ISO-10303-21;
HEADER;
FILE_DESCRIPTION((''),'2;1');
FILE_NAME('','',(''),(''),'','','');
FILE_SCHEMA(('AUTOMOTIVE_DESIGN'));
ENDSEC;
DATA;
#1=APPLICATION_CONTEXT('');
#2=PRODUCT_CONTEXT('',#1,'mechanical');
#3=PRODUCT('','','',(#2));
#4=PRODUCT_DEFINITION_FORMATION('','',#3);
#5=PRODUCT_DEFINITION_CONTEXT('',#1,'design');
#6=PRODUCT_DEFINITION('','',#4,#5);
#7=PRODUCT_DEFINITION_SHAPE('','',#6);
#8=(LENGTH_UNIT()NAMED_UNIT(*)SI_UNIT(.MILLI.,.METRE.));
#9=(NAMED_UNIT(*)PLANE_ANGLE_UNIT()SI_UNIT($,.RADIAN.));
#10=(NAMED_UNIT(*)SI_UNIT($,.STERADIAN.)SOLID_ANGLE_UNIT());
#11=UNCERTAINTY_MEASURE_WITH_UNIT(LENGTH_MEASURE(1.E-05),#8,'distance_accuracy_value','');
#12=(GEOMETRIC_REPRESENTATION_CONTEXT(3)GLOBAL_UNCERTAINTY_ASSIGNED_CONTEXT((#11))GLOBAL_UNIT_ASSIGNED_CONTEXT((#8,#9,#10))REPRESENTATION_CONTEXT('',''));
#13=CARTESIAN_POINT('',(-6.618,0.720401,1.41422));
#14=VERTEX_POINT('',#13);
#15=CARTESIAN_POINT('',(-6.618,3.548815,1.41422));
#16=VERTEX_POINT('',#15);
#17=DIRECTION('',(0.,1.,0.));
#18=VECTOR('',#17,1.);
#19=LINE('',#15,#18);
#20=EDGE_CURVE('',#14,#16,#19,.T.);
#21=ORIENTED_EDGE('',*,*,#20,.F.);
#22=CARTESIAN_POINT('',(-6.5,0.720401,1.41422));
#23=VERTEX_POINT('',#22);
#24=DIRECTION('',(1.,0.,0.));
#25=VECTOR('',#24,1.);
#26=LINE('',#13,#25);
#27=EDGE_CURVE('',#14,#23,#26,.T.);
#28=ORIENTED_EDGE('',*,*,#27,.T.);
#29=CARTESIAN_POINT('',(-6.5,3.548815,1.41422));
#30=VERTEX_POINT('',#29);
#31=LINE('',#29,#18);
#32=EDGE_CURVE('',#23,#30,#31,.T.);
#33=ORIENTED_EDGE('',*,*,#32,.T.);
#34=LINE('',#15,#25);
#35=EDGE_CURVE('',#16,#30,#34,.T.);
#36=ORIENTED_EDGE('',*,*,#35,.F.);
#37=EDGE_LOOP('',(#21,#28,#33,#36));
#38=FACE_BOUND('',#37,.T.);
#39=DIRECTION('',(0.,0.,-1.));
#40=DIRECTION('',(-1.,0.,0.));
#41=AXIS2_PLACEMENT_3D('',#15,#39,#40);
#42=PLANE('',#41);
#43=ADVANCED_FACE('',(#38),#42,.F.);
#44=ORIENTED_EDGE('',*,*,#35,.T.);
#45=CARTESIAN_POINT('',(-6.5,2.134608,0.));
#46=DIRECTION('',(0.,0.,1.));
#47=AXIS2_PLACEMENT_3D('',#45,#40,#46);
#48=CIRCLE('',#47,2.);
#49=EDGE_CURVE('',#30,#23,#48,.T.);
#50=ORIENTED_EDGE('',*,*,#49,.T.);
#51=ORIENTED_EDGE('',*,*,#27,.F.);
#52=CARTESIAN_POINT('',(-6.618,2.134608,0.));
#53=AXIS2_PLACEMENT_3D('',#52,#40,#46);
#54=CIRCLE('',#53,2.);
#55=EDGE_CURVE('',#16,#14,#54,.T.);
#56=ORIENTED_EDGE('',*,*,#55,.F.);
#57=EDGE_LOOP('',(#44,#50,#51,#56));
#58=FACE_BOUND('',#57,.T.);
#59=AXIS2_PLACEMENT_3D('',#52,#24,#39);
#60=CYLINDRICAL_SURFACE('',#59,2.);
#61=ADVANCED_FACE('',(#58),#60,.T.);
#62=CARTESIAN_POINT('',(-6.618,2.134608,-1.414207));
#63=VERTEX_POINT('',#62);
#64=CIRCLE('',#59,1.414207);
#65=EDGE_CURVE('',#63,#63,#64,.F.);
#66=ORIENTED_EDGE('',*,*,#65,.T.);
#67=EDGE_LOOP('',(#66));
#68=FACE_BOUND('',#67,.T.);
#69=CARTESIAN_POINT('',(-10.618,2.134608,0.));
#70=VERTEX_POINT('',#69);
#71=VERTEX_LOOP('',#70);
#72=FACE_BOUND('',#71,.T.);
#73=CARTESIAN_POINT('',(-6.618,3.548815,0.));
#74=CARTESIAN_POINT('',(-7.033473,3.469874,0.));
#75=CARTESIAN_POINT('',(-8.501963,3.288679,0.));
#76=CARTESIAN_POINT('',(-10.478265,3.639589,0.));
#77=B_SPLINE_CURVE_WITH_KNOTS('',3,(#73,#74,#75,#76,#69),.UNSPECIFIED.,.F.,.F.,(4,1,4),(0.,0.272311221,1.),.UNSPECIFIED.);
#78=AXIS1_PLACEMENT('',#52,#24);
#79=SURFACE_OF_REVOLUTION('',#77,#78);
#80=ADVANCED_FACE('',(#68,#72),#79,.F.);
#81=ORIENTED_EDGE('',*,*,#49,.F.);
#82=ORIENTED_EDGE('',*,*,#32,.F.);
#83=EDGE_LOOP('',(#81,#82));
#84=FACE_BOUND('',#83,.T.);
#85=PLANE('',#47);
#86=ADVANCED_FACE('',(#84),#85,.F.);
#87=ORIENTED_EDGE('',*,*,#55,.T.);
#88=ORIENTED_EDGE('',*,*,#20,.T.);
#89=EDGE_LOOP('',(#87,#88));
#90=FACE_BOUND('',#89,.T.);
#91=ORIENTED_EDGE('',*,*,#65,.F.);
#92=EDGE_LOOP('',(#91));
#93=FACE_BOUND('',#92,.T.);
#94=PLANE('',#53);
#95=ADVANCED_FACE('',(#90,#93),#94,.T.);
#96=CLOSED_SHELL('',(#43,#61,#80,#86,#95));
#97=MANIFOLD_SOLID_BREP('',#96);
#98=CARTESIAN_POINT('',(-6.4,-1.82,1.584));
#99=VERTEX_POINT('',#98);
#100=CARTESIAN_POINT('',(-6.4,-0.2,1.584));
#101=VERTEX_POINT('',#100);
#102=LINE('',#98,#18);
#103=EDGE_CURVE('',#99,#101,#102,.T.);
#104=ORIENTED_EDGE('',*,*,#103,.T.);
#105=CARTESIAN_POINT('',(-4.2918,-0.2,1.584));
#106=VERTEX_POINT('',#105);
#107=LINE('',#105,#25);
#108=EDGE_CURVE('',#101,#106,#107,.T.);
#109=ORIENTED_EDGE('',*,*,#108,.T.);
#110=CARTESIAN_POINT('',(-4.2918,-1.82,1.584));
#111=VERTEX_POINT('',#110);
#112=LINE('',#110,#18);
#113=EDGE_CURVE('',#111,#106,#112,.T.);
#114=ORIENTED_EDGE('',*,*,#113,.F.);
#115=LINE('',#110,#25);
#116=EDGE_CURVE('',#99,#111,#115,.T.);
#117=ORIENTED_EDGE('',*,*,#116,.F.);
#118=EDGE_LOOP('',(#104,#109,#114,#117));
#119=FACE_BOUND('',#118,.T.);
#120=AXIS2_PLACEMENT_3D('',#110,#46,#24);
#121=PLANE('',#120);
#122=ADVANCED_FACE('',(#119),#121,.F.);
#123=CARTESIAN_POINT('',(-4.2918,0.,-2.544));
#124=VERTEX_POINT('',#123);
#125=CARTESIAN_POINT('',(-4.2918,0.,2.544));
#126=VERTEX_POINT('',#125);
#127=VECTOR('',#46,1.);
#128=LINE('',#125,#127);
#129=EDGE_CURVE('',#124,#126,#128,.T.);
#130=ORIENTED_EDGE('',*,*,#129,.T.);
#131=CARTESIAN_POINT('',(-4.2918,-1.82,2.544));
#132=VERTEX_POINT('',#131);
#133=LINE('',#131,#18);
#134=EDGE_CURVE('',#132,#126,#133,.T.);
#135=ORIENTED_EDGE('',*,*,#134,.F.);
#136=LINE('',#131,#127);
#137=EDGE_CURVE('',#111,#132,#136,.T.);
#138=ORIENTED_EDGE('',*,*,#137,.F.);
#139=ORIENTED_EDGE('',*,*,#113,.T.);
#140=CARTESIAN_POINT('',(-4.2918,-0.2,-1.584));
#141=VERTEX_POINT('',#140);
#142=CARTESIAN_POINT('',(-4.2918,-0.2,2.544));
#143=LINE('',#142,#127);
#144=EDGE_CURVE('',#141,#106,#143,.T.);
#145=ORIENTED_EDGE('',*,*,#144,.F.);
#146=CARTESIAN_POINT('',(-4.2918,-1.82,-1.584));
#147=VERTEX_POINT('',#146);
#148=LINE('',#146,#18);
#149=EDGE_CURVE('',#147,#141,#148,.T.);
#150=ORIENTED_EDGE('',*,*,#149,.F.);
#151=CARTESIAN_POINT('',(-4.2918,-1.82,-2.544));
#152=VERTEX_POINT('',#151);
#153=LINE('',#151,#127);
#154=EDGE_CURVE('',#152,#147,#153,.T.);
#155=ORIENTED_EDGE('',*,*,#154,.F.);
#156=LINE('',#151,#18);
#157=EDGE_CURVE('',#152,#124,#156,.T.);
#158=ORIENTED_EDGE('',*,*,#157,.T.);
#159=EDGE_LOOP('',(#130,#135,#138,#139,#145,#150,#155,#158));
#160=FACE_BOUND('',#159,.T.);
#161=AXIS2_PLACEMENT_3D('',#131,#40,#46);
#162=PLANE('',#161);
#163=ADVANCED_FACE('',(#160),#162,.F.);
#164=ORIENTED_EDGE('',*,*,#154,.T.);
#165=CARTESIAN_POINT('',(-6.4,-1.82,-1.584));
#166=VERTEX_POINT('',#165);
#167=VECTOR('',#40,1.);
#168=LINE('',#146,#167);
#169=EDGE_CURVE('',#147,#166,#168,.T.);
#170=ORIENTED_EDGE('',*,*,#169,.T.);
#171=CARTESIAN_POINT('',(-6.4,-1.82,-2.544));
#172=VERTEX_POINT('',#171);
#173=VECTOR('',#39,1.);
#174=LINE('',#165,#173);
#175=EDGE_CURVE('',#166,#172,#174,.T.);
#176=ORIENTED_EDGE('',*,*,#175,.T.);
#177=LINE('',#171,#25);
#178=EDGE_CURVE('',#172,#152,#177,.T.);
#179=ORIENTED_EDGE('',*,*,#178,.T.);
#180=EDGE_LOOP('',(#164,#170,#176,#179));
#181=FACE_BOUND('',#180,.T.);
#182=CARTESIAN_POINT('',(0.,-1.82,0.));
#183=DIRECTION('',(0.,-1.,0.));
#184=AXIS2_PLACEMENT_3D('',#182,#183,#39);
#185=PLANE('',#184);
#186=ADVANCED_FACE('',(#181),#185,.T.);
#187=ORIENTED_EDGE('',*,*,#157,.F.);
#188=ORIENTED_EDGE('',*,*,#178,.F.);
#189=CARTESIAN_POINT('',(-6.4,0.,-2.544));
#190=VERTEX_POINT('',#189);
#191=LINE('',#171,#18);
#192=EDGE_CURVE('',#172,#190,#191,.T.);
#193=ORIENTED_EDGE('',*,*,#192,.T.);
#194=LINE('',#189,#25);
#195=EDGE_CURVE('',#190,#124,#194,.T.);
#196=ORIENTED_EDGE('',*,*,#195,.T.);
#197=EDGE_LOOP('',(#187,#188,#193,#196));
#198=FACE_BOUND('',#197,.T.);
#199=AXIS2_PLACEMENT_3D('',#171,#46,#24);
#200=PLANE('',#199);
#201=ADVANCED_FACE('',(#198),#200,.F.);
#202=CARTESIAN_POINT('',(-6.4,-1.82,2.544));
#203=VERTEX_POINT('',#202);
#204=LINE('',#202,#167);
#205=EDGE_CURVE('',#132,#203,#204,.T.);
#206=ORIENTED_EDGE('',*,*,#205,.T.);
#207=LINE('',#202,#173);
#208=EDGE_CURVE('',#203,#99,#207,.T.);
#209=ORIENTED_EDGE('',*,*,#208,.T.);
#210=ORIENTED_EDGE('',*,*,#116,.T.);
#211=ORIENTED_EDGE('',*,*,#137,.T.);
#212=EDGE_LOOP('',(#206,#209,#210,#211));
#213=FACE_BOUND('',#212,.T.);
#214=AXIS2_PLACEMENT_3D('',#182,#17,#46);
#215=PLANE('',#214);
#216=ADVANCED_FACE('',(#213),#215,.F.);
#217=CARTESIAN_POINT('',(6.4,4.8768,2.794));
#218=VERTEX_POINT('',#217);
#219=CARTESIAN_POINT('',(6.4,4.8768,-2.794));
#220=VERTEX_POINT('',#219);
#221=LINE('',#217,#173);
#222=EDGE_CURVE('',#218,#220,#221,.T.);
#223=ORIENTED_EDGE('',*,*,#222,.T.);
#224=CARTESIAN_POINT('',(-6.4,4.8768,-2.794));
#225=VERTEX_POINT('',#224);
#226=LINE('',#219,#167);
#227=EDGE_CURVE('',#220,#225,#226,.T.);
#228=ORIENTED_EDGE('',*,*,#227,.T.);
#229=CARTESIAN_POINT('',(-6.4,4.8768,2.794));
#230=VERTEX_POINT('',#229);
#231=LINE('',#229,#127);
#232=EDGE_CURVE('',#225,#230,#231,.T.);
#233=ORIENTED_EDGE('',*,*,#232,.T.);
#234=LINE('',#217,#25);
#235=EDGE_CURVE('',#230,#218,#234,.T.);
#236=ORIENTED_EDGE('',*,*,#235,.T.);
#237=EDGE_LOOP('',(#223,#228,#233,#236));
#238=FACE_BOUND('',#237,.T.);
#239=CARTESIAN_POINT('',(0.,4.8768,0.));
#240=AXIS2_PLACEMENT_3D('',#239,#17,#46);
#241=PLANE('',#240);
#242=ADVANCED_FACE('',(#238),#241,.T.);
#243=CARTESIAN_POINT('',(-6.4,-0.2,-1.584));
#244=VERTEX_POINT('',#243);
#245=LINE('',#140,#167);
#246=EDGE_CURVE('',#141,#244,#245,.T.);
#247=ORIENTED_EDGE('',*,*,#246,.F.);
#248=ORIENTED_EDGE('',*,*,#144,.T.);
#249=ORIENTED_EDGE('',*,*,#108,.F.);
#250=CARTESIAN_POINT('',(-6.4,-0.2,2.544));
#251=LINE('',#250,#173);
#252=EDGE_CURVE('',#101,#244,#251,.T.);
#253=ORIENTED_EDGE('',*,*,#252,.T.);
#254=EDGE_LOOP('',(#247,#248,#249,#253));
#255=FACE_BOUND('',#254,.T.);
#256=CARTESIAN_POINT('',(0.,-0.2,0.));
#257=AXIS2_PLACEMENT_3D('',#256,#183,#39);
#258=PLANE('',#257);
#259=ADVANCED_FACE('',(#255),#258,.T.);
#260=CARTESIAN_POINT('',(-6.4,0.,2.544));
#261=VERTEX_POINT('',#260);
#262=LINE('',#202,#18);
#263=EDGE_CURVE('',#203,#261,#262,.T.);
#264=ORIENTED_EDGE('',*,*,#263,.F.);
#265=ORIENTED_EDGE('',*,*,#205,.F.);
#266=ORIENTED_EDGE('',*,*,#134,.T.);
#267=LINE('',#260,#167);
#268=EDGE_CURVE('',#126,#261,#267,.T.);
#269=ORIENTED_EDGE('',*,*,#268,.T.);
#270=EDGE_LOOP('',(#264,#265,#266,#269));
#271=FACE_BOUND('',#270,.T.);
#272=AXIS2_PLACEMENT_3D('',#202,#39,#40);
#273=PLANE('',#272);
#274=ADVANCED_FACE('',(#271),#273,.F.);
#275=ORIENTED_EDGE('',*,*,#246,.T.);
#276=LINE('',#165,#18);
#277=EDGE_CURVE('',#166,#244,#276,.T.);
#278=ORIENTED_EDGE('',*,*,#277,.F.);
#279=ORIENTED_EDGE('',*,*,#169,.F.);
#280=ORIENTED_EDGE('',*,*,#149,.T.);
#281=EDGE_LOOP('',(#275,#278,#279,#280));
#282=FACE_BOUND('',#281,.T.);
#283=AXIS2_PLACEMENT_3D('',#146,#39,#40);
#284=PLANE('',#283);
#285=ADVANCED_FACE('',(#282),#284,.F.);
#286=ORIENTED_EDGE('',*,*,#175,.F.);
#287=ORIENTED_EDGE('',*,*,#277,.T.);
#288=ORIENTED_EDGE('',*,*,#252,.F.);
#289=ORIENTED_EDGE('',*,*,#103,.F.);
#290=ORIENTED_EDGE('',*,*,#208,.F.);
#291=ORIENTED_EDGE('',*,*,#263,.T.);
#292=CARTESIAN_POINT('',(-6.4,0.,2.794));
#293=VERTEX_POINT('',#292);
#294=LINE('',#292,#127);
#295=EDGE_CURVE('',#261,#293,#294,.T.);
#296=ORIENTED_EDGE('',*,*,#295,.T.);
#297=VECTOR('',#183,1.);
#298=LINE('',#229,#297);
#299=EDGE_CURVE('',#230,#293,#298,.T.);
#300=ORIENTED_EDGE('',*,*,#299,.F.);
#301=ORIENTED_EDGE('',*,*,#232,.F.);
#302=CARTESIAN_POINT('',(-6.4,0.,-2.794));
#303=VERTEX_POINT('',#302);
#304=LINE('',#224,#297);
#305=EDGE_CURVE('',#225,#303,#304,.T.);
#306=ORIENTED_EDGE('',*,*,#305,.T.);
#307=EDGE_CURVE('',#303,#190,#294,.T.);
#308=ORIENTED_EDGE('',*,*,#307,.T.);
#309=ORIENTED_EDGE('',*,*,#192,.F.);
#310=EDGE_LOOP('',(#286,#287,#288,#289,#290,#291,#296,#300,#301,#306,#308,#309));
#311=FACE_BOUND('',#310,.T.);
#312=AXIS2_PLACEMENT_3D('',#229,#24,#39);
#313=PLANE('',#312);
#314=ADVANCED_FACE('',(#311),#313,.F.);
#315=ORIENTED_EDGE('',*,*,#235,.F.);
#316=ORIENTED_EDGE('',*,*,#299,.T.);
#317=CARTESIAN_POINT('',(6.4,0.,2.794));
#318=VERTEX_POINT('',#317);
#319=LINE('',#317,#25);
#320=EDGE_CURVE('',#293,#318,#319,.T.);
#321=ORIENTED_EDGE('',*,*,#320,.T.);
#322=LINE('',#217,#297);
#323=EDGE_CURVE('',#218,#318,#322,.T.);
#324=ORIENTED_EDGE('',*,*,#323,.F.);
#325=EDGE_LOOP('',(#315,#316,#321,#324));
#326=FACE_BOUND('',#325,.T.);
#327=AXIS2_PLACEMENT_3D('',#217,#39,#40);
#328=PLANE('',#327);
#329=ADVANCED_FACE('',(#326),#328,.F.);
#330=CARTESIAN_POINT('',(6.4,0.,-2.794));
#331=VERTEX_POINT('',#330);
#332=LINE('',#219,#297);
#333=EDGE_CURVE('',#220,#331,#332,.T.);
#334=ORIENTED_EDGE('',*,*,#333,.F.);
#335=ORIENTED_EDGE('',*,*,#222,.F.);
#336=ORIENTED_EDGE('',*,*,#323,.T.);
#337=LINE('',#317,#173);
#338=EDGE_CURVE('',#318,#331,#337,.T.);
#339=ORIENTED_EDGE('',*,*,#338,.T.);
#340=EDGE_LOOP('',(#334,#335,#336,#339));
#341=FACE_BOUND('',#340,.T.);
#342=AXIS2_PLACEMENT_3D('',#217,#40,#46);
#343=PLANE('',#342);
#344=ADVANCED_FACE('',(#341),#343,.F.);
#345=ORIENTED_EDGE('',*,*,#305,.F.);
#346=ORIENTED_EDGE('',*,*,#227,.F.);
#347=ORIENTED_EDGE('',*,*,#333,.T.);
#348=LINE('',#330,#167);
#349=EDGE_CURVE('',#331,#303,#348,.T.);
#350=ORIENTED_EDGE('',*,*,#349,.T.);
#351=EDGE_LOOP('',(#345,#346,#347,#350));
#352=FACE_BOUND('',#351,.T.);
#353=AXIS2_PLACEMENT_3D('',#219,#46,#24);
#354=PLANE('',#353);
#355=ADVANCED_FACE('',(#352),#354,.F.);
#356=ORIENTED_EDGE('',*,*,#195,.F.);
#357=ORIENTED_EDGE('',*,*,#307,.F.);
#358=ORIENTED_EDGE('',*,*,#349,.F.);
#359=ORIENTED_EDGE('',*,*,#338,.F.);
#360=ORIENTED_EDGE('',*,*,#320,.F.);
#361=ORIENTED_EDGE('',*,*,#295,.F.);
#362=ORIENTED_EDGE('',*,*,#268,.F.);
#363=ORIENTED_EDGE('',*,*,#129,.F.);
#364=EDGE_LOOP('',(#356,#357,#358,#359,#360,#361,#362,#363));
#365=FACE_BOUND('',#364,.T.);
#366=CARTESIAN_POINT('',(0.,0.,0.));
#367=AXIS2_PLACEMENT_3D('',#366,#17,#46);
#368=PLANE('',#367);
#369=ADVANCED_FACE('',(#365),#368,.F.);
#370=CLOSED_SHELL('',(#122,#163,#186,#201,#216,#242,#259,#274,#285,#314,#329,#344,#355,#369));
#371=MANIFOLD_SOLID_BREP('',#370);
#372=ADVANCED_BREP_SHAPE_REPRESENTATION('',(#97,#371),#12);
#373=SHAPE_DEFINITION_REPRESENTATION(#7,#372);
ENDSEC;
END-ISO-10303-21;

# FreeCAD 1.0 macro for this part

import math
import FreeCAD as App
import Part
import Sketcher
from FreeCAD import Vector

doc = App.newDocument("Part")
body = doc.addObject("PartDesign::Body", "Body")

sketch1 = body.newObject("Sketcher::SketchObject", "Sketch")
sketch1.AttachmentSupport = (doc.getObject("XZ_Plane"), [""])
sketch1.MapMode = "FlatFace"
sketch1.addGeometry(Part.LineSegment(Vector(-6, -3, 0), Vector(-6, 3, 0)), False)
sketch1.addGeometry(Part.LineSegment(Vector(-6, 3, 0), Vector(6, 3, 0)), False)
sketch1.addGeometry(Part.LineSegment(Vector(6, 3, 0), Vector(6, -3, 0)), False)
sketch1.addGeometry(Part.LineSegment(Vector(6, -3, 0), Vector(-6, -3, 0)), False)
sketch1.addConstraint(Sketcher.Constraint("Coincident", 0, 2, 1, 1))
sketch1.addConstraint(Sketcher.Constraint("Coincident", 1, 2, 2, 1))
sketch1.addConstraint(Sketcher.Constraint("Coincident", 2, 2, 3, 1))
sketch1.addConstraint(Sketcher.Constraint("Coincident", 3, 2, 0, 1))
sketch1.addConstraint(Sketcher.Constraint("Vertical", 0))
sketch1.addConstraint(Sketcher.Constraint("Horizontal", 1))
sketch1.addConstraint(Sketcher.Constraint("Vertical", 2))
sketch1.addConstraint(Sketcher.Constraint("Horizontal", 3))
sketch1.addConstraint(Sketcher.Constraint("Symmetric", 0, 2, 2, 2, -1, 1))
sketch1.addConstraint(Sketcher.Constraint("DistanceX", 1, 1, 1, 2, 12.8))
sketch1.addConstraint(Sketcher.Constraint("DistanceY", 0, 1, 0, 2, 5.588))
pad1 = body.newObject("PartDesign::Pad", "Pad")
pad1.Profile = sketch1
pad1.Length = 4.8768
pad1.Reversed = True

sketch2 = body.newObject("Sketcher::SketchObject", "Sketch001")
sketch2.AttachmentSupport = (doc.getObject("XZ_Plane"), [""])
sketch2.MapMode = "FlatFace"
sketch2.addGeometry(Part.LineSegment(Vector(-6.4, 2.5, 0), Vector(-6.4, 1.6, 0)), False)
sketch2.addGeometry(Part.LineSegment(Vector(-6.4, 1.6, 0), Vector(-4.3, 1.6, 0)), False)
sketch2.addGeometry(Part.LineSegment(Vector(-4.3, 1.6, 0), Vector(-4.3, 2.5, 0)), False)
sketch2.addGeometry(Part.LineSegment(Vector(-4.3, 2.5, 0), Vector(-6.4, 2.5, 0)), False)
sketch2.addGeometry(Part.LineSegment(Vector(-6.4, -1.6, 0), Vector(-6.4, -2.5, 0)), False)
sketch2.addGeometry(Part.LineSegment(Vector(-6.4, -2.5, 0), Vector(-4.3, -2.5, 0)), False)
sketch2.addGeometry(Part.LineSegment(Vector(-4.3, -2.5, 0), Vector(-4.3, -1.6, 0)), False)
sketch2.addGeometry(Part.LineSegment(Vector(-4.3, -1.6, 0), Vector(-6.4, -1.6, 0)), False)
sketch2.addConstraint(Sketcher.Constraint("Coincident", 0, 2, 1, 1))
sketch2.addConstraint(Sketcher.Constraint("Coincident", 1, 2, 2, 1))
sketch2.addConstraint(Sketcher.Constraint("Coincident", 2, 2, 3, 1))
sketch2.addConstraint(Sketcher.Constraint("Coincident", 3, 2, 0, 1))
sketch2.addConstraint(Sketcher.Constraint("Coincident", 4, 2, 5, 1))
sketch2.addConstraint(Sketcher.Constraint("Coincident", 5, 2, 6, 1))
sketch2.addConstraint(Sketcher.Constraint("Coincident", 6, 2, 7, 1))
sketch2.addConstraint(Sketcher.Constraint("Coincident", 7, 2, 4, 1))
sketch2.addConstraint(Sketcher.Constraint("Vertical", 0))
sketch2.addConstraint(Sketcher.Constraint("Horizontal", 1))
sketch2.addConstraint(Sketcher.Constraint("Vertical", 2))
sketch2.addConstraint(Sketcher.Constraint("Horizontal", 3))
sketch2.addConstraint(Sketcher.Constraint("Vertical", 4))
sketch2.addConstraint(Sketcher.Constraint("Horizontal", 5))
sketch2.addConstraint(Sketcher.Constraint("Vertical", 6))
sketch2.addConstraint(Sketcher.Constraint("Horizontal", 7))
sketch2.addConstraint(Sketcher.Constraint("Symmetric", 3, 2, 4, 2, -1))
sketch2.addConstraint(Sketcher.Constraint("Symmetric", 1, 2, 6, 2, -1))
sketch2.addConstraint(Sketcher.Constraint("DistanceY", 0, 2, 0, 1, 0.96))
sketch2.addConstraint(Sketcher.Constraint("DistanceX", 0, 2, -1, 1, 6.4))
sketch2.addConstraint(Sketcher.Constraint("DistanceX", 1, 1, 1, 2, 2.1082))
sketch2.addConstraint(Sketcher.Constraint("DistanceY", -1, 1, 0, 2, 1.584))
pad2 = body.newObject("PartDesign::Pad", "Pad001")
pad2.Profile = sketch2
pad2.Length = 1.82

sketch3 = body.newObject("Sketcher::SketchObject", "Sketch002")
sketch3.AttachmentSupport = (doc.getObject("XZ_Plane"), [""])
sketch3.MapMode = "FlatFace"
sketch3.addGeometry(Part.LineSegment(Vector(-6.4, 2.5, 0), Vector(-6.4, -2.5, 0)), False)
sketch3.addGeometry(Part.LineSegment(Vector(-6.4, -2.5, 0), Vector(-4.3, -2.5, 0)), False)
sketch3.addGeometry(Part.LineSegment(Vector(-4.3, -2.5, 0), Vector(-4.3, 2.5, 0)), False)
sketch3.addGeometry(Part.LineSegment(Vector(-4.3, 2.5, 0), Vector(-6.4, 2.5, 0)), False)
sketch3.addConstraint(Sketcher.Constraint("Coincident", 0, 2, 1, 1))
sketch3.addConstraint(Sketcher.Constraint("Coincident", 1, 2, 2, 1))
sketch3.addConstraint(Sketcher.Constraint("Coincident", 2, 2, 3, 1))
sketch3.addConstraint(Sketcher.Constraint("Coincident", 3, 2, 0, 1))
sketch3.addConstraint(Sketcher.Constraint("Vertical", 0))
sketch3.addConstraint(Sketcher.Constraint("Horizontal", 1))
sketch3.addConstraint(Sketcher.Constraint("Vertical", 2))
sketch3.addConstraint(Sketcher.Constraint("Horizontal", 3))
sketch3.addConstraint(Sketcher.Constraint("DistanceX", 0, 2, -1, 1, 6.4))
sketch3.addConstraint(Sketcher.Constraint("DistanceY", 0, 2, 0, 1, 5.088))
sketch3.addConstraint(Sketcher.Constraint("DistanceX", 1, 1, 1, 2, 2.1082))
sketch3.addConstraint(Sketcher.Constraint("DistanceY", 0, 2, -1, 1, 2.544))
pad3 = body.newObject("PartDesign::Pad", "Pad002")
pad3.Profile = sketch3
pad3.Length = 0.2
body2 = doc.addObject("PartDesign::Body", "Body001")

sketch4 = body2.newObject("Sketcher::SketchObject", "Sketch003")
sketch4.AttachmentSupport = (doc.getObject("YZ_Plane001"), [""])
sketch4.MapMode = "FlatFace"
sketch4.AttachmentOffset = App.Placement(Vector(0, 0, -6.5), App.Rotation())
sketch4.addGeometry(Part.LineSegment(Vector(0.7, 1.4, 0), Vector(3.5, 1.4, 0)), False)
sketch4.addGeometry(Part.ArcOfCircle(Part.Circle(Vector(2.1, 0, 0), Vector(0, 0, 1), 2), math.radians(135), math.radians(405)), False)
sketch4.addConstraint(Sketcher.Constraint("Coincident", 0, 1, 1, 1))
sketch4.addConstraint(Sketcher.Constraint("Coincident", 1, 2, 0, 2))
sketch4.addConstraint(Sketcher.Constraint("Horizontal", 0))
sketch4.addConstraint(Sketcher.Constraint("PointOnObject", 1, 3, -1))
sketch4.addConstraint(Sketcher.Constraint("Radius", 1, 2.0))
sketch4.addConstraint(Sketcher.Constraint("DistanceX", -1, 1, 0, 1, 0.720401))
sketch4.addConstraint(Sketcher.Constraint("DistanceX", 0, 1, 0, 2, 2.828415))
pad4 = body2.newObject("PartDesign::Pad", "Pad003")
pad4.Profile = sketch4
pad4.Length = 0.118
pad4.Reversed = True

sketch5 = body2.newObject("Sketcher::SketchObject", "Sketch004")
sketch5.AttachmentSupport = (doc.getObject("XY_Plane001"), [""])
sketch5.MapMode = "FlatFace"
sketch5.addGeometry(Part.LineSegment(Vector(-6.618, 2.134608, 0), Vector(-6.618, 3.548815, 0)), False)
sketch5.addGeometry(Part.BSplineCurve([Vector(-10.618, 2.134608, 0), Vector(-10.478265, 3.639589, 0), Vector(-8.501963, 3.288679, 0), Vector(-7.033473, 3.469874, 0), Vector(-6.618, 3.548815, 0)], [4, 1, 4], [0, 0.727688779, 1], False, 3, [1, 1, 1, 1, 1], False), False)
sketch5.addGeometry(Part.LineSegment(Vector(-10.618, 2.134608, 0), Vector(-6.618, 2.134608, 0)), False)
sketch5.addGeometry(Part.LineSegment(Vector(-6.618, 2.134608, 0), Vector(-10.618, 2.134608, 0)), True)
sketch5.addConstraint(Sketcher.Constraint("Block", 1))
sketch5.addConstraint(Sketcher.Constraint("Coincident", 0, 2, 1, 2))
sketch5.addConstraint(Sketcher.Constraint("Coincident", 1, 1, 2, 1))
sketch5.addConstraint(Sketcher.Constraint("Coincident", 2, 2, 0, 1))
sketch5.addConstraint(Sketcher.Constraint("Vertical", 0))
sketch5.addConstraint(Sketcher.Constraint("Horizontal", 2))
sketch5.addConstraint(Sketcher.Constraint("Horizontal", 3))
sketch5.addConstraint(Sketcher.Constraint("Coincident", 3, 1, 2, 2))
sketch5.addConstraint(Sketcher.Constraint("Equal", 2, 3))
revolution = body2.newObject("PartDesign::Revolution", "Revolution")
revolution.Profile = sketch5
revolution.ReferenceAxis = (sketch5, ["Axis0"])
revolution.Angle = 360

doc.recompute()
